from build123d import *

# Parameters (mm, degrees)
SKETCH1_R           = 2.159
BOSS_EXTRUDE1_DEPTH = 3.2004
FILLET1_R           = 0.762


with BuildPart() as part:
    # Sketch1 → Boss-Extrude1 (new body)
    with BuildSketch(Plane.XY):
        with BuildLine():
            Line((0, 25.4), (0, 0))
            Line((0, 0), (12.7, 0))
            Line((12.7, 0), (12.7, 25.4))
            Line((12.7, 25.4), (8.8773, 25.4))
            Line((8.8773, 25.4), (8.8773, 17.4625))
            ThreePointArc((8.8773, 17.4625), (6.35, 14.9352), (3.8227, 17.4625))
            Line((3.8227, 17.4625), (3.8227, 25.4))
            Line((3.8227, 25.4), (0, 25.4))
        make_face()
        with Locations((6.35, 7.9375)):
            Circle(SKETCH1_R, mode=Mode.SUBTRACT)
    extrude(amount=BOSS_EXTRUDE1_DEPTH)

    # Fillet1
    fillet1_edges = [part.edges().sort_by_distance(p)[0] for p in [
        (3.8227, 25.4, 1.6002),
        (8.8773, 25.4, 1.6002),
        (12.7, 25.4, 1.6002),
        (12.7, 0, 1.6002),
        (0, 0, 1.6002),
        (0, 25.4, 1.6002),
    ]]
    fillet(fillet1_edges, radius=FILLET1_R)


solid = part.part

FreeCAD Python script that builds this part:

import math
import FreeCAD as App
import Part
import Sketcher
from FreeCAD import Vector
Q = App.Units.Quantity


def edges_at(feature, points):
    """Names of the edges that pass closest to the given points."""
    edges = feature.Shape.Edges
    near = lambda p: min(range(len(edges)), key=lambda i: edges[i].distToShape(Part.Vertex(*p))[0])
    return sorted({f"Edge{near(p) + 1}" for p in points})

doc = App.newDocument("Part")
params = doc.addObject("Spreadsheet::Sheet", "Params")
for row, (alias, value) in enumerate([
    ("sketch1_diameter", "0.17 in"),
    ("sketch1_height", "1 in"),
    ("sketch1_width", "0.5 in"),
    ("sketch1_height2", "0.3125 in"),
    ("pad1_length", "0.126 in"),
    ("fillet_radius", "0.03 in"),
], start=1):
    params.set(f"A{row}", alias)
    params.set(f"B{row}", "=" + value)
    params.setAlias(f"B{row}", alias)

body = doc.addObject("PartDesign::Body", "Body")

sketch1 = body.newObject("Sketcher::SketchObject", "Sketch")
sketch1.AttachmentSupport = (doc.getObject("XY_Plane"), [""])
sketch1.MapMode = "FlatFace"
sketch1.addGeometry([
    Part.LineSegment(Vector(0, 25.4, 0), Vector(0, 0, 0)),
    Part.LineSegment(Vector(0, 0, 0), Vector(12.7, 0, 0)),
    Part.LineSegment(Vector(12.7, 0, 0), Vector(12.7, 25.4, 0)),
    Part.LineSegment(Vector(12.7, 25.4, 0), Vector(8.9, 25.4, 0)),
    Part.LineSegment(Vector(8.9, 25.4, 0), Vector(8.9, 17.5, 0)),
    Part.ArcOfCircle(Part.Circle(Vector(6.3, 17.5, 0), Vector(0, 0, 1), 2.5), math.radians(180), math.radians(360)),
    Part.LineSegment(Vector(3.8, 17.5, 0), Vector(3.8, 25.4, 0)),
    Part.LineSegment(Vector(3.8, 25.4, 0), Vector(0, 25.4, 0)),
    Part.Circle(Vector(6.3, 7.9, 0), Vector(0, 0, 1), 2.2),
], False)
sketch1.addConstraint([
    Sketcher.Constraint("Coincident", 0, 2, 1, 1),
    Sketcher.Constraint("Coincident", 1, 2, 2, 1),
    Sketcher.Constraint("Coincident", 2, 2, 3, 1),
    Sketcher.Constraint("Coincident", 3, 2, 4, 1),
    Sketcher.Constraint("Tangent", 4, 2, 5, 2),
    Sketcher.Constraint("Tangent", 5, 1, 6, 1),
    Sketcher.Constraint("Coincident", 6, 2, 7, 1),
    Sketcher.Constraint("Coincident", 7, 2, 0, 1),
    Sketcher.Constraint("Vertical", 0),
    Sketcher.Constraint("Horizontal", 1),
    Sketcher.Constraint("Vertical", 2),
    Sketcher.Constraint("Horizontal", 3),
    Sketcher.Constraint("Vertical", 4),
    Sketcher.Constraint("Vertical", 6),
    Sketcher.Constraint("Horizontal", 7),
    Sketcher.Constraint("Coincident", 0, 2, -1, 1),
    Sketcher.Constraint("Horizontal", 3, 2, 6, 2),
    Sketcher.Constraint("Vertical", 5, 3, 8, 3),
    Sketcher.Constraint("Equal", 3, 7),
    Sketcher.Constraint("Diameter", 8, Q("0.17 in")),
    Sketcher.Constraint("DistanceY", 0, 2, 0, 1, Q("1 in")),
    Sketcher.Constraint("DistanceX", 1, 1, 1, 2, Q("0.5 in")),
    Sketcher.Constraint("Radius", 5, Q("0.0995 in")),
    Sketcher.Constraint("DistanceY", 4, 2, 4, 1, Q("0.3125 in")),
    Sketcher.Constraint("DistanceY", -1, 1, 8, 3, Q("0.3125 in")),
])
sketch1.setExpression("Constraints[19]", "Params.sketch1_diameter")
sketch1.setExpression("Constraints[20]", "Params.sketch1_height")
sketch1.setExpression("Constraints[21]", "Params.sketch1_width")
sketch1.setExpression("Constraints[23]", "Params.sketch1_height2")
pad1 = body.newObject("PartDesign::Pad", "Pad")
pad1.Profile = sketch1
pad1.setExpression("Length", "Params.pad1_length")
doc.recompute()

fillet = body.newObject("PartDesign::Fillet", "Fillet")
fillet.Base = (pad1, edges_at(pad1, [
    (3.823, 25.4, 1.6),
    (8.877, 25.4, 1.6),
    (12.7, 25.4, 1.6),
    (12.7, 0, 1.6),
    (0, 0, 1.6),
    (0, 25.4, 1.6),
]))
fillet.setExpression("Radius", "Params.fillet_radius")

doc.recompute()
